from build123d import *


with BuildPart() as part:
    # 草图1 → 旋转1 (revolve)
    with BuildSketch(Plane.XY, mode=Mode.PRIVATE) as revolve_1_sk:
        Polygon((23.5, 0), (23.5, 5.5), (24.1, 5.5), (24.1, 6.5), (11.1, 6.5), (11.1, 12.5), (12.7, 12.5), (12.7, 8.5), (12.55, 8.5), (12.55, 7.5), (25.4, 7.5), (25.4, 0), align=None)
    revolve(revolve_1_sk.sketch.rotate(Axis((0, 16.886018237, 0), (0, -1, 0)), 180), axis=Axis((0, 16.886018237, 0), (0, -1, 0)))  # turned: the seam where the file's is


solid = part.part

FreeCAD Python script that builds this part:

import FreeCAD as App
import Part
import Sketcher


def add_polygon(sketch, points):
    """Adds a closed chain of lines whose ends are joined by coincident constraints."""
    first, n = sketch.GeometryCount, len(points)
    for a, b in zip(points, points[1:] + points[:1]):
        sketch.addGeometry(Part.LineSegment(App.Vector(*a, 0), App.Vector(*b, 0)), False)
    for i in range(n):
        sketch.addConstraint(Sketcher.Constraint("Coincident", first + i, 2, first + (i + 1) % n, 1))

doc = App.newDocument("Part")
body = doc.addObject("PartDesign::Body", "Body")

sketch1 = body.newObject("Sketcher::SketchObject", "Sketch")
sketch1.AttachmentSupport = (doc.getObject("XY_Plane"), [""])
sketch1.MapMode = "FlatFace"
add_polygon(sketch1, [(23.5, 5.5), (23.5, 0), (25.4, 0), (25.4, 7.5), (12.55, 7.5), (12.55, 8.5), (12.7, 8.5), (12.7, 12.5), (11.1, 12.5), (11.1, 6.5), (24.1, 6.5), (24.1, 5.5)])
sketch1.addConstraint(Sketcher.Constraint("Vertical", 0))
sketch1.addConstraint(Sketcher.Constraint("Horizontal", 1))
sketch1.addConstraint(Sketcher.Constraint("Vertical", 2))
sketch1.addConstraint(Sketcher.Constraint("Horizontal", 3))
sketch1.addConstraint(Sketcher.Constraint("Vertical", 4))
sketch1.addConstraint(Sketcher.Constraint("Horizontal", 5))
sketch1.addConstraint(Sketcher.Constraint("Vertical", 6))
sketch1.addConstraint(Sketcher.Constraint("Horizontal", 7))
sketch1.addConstraint(Sketcher.Constraint("Vertical", 8))
sketch1.addConstraint(Sketcher.Constraint("Horizontal", 9))
sketch1.addConstraint(Sketcher.Constraint("Vertical", 10))
sketch1.addConstraint(Sketcher.Constraint("Horizontal", 11))
sketch1.addConstraint(Sketcher.Constraint("PointOnObject", 0, 2, -1))
sketch1.addConstraint(Sketcher.Constraint("Equal", 4, 10))
sketch1.addConstraint(Sketcher.Constraint("DistanceX", 9, 1, 9, 2, 13.0))
sketch1.addConstraint(Sketcher.Constraint("DistanceY", 4, 1, 4, 2, 1.0))
sketch1.addConstraint(Sketcher.Constraint("DistanceY", 6, 1, 6, 2, 4.0))
sketch1.addConstraint(Sketcher.Constraint("DistanceY", 8, 2, 8, 1, 6.0))
sketch1.addConstraint(Sketcher.Constraint("DistanceX", 1, 1, 1, 2, 1.9))
sketch1.addConstraint(Sketcher.Constraint("DistanceX", 7, 2, 7, 1, 1.6))
sketch1.addConstraint(Sketcher.Constraint("DistanceX", 11, 2, 11, 1, 0.6))
sketch1.addConstraint(Sketcher.Constraint("DistanceY", 0, 2, 0, 1, 5.5))
sketch1.addConstraint(Sketcher.Constraint("DistanceX", 3, 2, 3, 1, 12.85))
sketch1.addConstraint(Sketcher.Constraint("DistanceX", -1, 1, 0, 2, 23.5))
revolution = body.newObject("PartDesign::Revolution", "Revolution")
revolution.Profile = sketch1
revolution.ReferenceAxis = (sketch1, ["V_Axis"])
revolution.Angle = 360

doc.recompute()
